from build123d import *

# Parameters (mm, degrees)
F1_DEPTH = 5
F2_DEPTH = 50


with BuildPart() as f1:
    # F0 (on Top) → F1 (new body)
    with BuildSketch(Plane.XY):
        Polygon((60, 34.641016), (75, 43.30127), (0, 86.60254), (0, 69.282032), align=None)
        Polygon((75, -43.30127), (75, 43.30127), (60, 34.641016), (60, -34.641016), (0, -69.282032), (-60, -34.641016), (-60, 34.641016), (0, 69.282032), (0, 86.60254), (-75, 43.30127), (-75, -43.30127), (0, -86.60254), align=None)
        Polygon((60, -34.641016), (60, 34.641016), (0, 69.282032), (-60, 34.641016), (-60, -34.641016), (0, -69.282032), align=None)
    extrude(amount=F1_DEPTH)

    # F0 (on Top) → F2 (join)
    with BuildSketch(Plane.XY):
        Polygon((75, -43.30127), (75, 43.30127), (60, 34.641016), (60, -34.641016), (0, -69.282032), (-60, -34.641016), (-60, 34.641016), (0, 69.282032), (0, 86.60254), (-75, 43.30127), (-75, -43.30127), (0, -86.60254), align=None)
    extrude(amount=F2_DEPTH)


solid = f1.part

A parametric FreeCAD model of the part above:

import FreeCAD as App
import Part
import Sketcher
Q = App.Units.Quantity


def add_polygon(sketch, points):
    """Adds a closed chain of lines whose ends are joined by coincident constraints."""
    first, n = sketch.GeometryCount, len(points)
    for a, b in zip(points, points[1:] + points[:1]):
        sketch.addGeometry(Part.LineSegment(App.Vector(*a, 0), App.Vector(*b, 0)), False)
    for i in range(n):
        sketch.addConstraint(Sketcher.Constraint("Coincident", first + i, 2, first + (i + 1) % n, 1))

doc = App.newDocument("Part")
body = doc.addObject("PartDesign::Body", "Body")

sketch1 = body.newObject("Sketcher::SketchObject", "Sketch")
sketch1.AttachmentSupport = (doc.getObject("XY_Plane"), [""])
sketch1.MapMode = "FlatFace"
add_polygon(sketch1, [(75, 43), (0, 87), (-75, 43), (-75, -43), (0, -87), (75, -43)])
sketch1.addConstraint([
    Sketcher.Constraint("Vertical", 2),
    Sketcher.Constraint("Vertical", 5),
    Sketcher.Constraint("Symmetric", 0, 2, 3, 2, -1, 1),
    Sketcher.Constraint("Symmetric", 1, 2, 4, 2, -1, 1),
    Sketcher.Constraint("PointOnObject", 0, 2, -2),
    Sketcher.Constraint("Parallel", 0, 3),
    Sketcher.Constraint("Horizontal", 2, 2, 4, 2),
    Sketcher.Constraint("Angle", 0, Q("150 deg")),
    Sketcher.Constraint("DistanceX", 1, 2, -1, 1, 75.0),
    Sketcher.Constraint("DistanceY", 2, 2, 2, 1, 86.60254),
])
pad1 = body.newObject("PartDesign::Pad", "Pad")
pad1.Profile = sketch1
pad1.Length = 5

sketch2 = body.newObject("Sketcher::SketchObject", "Sketch001")
sketch2.AttachmentSupport = (doc.getObject("XY_Plane"), [""])
sketch2.MapMode = "FlatFace"
add_polygon(sketch2, [(75, -43), (75, 43), (60, 35), (60, -35), (0, -69), (-60, -35), (-60, 35), (0, 69), (0, 87), (-75, 43), (-75, -43), (0, -87)])
sketch2.addConstraint([
    Sketcher.Constraint("Vertical", 0),
    Sketcher.Constraint("Vertical", 2),
    Sketcher.Constraint("Vertical", 5),
    Sketcher.Constraint("Vertical", 7),
    Sketcher.Constraint("Vertical", 9),
    Sketcher.Constraint("Symmetric", 1, 2, 4, 2, -1, 1),
    Sketcher.Constraint("Symmetric", 3, 2, 6, 2, -1, 1),
    Sketcher.Constraint("Symmetric", 0, 2, 9, 2, -1, 1),
    Sketcher.Constraint("Symmetric", 7, 2, 10, 2, -1, 1),
    Sketcher.Constraint("PointOnObject", 3, 2, -2),
    Sketcher.Constraint("Parallel", 1, 3),
    Sketcher.Constraint("Parallel", 3, 6),
    Sketcher.Constraint("Parallel", 6, 8),
    Sketcher.Constraint("Parallel", 4, 10),
    Sketcher.Constraint("Parallel", 8, 11),
    Sketcher.Constraint("Horizontal", 2, 2, 4, 2),
    Sketcher.Constraint("Angle", 1, Q("-150 deg")),
    Sketcher.Constraint("DistanceX", -1, 1, 0, 2, 75.0),
    Sketcher.Constraint("DistanceX", -1, 1, 1, 2, 60.0),
    Sketcher.Constraint("DistanceY", 0, 1, 0, 2, 86.60254),
])
pad2 = body.newObject("PartDesign::Pad", "Pad001")
pad2.Profile = sketch2
pad2.Length = 50

doc.recompute()
